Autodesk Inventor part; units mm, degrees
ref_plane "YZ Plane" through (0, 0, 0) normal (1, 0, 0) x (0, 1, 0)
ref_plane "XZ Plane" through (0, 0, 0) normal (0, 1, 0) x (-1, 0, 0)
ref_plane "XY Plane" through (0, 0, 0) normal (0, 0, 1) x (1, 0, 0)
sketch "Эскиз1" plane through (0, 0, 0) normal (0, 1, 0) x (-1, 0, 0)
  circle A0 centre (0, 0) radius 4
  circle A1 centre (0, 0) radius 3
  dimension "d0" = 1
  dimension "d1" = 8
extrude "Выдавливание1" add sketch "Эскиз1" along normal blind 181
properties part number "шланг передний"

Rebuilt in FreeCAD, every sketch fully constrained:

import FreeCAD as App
import Part
import Sketcher
Q = App.Units.Quantity

doc = App.newDocument("Part")
body = doc.addObject("PartDesign::Body", "Body")

# Sketch on XZ plane
sketch1 = body.newObject("Sketcher::SketchObject", "Sketch")
sketch1.AttachmentSupport = (doc.getObject("XZ_Plane"), [""])
sketch1.MapMode = "FlatFace"
sketch1.addGeometry(Part.Circle(App.Vector(0, 0, 0), App.Vector(0, 0, 1), 4), False)
sketch1.addGeometry(Part.Circle(App.Vector(0, 0, 0), App.Vector(0, 0, 1), 3), False)
sketch1.addConstraint(Sketcher.Constraint("Coincident", 0, 3, -1, 1))
sketch1.addConstraint(Sketcher.Constraint("Coincident", 1, 3, -1, 1))
sketch1.addConstraint(Sketcher.Constraint("Diameter", 0, Q("8 mm")))
sketch1.addConstraint(Sketcher.Constraint("Diameter", 1, Q("6 mm")))
pad1 = body.newObject("PartDesign::Pad", "Pad")
pad1.Profile = sketch1
pad1.Length = 181
pad1.Reversed = True

doc.recompute()
